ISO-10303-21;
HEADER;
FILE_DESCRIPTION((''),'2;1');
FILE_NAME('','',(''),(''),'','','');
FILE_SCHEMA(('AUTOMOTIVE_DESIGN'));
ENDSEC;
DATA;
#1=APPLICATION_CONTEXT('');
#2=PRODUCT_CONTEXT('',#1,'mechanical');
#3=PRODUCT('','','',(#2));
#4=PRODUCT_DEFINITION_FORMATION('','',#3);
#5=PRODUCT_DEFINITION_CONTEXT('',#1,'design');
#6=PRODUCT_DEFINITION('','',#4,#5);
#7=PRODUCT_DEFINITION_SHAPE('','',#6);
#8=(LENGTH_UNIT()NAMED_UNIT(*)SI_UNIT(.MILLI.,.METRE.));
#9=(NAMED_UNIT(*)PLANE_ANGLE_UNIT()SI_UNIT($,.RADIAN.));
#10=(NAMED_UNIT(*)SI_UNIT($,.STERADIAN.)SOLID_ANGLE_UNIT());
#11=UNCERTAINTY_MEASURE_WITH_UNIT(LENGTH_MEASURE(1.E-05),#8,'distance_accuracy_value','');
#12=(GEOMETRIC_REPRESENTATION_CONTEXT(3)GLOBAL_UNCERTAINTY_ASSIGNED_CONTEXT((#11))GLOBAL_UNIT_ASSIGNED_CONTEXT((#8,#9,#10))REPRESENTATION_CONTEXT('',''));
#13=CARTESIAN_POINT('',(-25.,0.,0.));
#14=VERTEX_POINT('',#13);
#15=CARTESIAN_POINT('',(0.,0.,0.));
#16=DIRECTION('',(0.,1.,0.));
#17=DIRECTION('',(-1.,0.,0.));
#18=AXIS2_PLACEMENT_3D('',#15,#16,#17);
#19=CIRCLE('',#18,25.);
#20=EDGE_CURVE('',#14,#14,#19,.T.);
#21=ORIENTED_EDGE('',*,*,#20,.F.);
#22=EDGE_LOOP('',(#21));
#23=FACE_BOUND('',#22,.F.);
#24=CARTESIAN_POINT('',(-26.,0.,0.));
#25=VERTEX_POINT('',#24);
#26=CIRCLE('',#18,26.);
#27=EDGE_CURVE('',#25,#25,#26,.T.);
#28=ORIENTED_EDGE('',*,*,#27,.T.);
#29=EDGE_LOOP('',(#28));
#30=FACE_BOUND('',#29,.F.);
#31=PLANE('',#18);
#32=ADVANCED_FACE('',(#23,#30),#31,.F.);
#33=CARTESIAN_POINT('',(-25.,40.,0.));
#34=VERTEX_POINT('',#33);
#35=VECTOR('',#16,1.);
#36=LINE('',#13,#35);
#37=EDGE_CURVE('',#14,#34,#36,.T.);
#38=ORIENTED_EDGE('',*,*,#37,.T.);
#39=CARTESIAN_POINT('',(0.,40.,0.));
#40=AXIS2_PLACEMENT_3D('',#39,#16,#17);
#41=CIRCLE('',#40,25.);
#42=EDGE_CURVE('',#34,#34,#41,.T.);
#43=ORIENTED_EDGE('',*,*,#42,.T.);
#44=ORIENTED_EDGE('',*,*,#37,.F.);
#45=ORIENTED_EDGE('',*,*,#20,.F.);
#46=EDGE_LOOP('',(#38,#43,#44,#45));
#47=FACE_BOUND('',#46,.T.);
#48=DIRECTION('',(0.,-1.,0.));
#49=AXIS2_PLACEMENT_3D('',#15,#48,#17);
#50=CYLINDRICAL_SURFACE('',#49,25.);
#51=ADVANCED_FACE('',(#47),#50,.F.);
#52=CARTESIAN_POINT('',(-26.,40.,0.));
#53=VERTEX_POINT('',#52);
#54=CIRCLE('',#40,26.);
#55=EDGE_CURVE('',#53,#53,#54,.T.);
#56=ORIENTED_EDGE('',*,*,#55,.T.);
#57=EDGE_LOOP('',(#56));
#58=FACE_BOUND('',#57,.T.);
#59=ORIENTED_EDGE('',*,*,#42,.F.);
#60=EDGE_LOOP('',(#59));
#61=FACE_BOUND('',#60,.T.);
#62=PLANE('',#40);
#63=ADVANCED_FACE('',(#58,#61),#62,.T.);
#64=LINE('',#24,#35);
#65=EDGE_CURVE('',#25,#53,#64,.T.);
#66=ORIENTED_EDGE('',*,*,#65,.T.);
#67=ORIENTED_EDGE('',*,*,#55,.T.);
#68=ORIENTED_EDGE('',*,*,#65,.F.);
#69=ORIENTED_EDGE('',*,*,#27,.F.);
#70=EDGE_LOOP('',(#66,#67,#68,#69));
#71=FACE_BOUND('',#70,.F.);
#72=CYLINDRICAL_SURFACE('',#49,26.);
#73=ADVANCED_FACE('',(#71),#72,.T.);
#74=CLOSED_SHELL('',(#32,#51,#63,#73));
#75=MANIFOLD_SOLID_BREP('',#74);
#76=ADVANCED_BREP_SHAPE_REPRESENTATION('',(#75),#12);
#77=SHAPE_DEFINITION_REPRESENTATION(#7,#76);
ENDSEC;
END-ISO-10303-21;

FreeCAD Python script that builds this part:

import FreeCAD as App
import Part
import Sketcher

V = App.Vector

doc = App.newDocument("Part")
body = doc.addObject("PartDesign::Body", "Body")

sketch1 = doc.addObject("Sketcher::SketchObject", "Sketch")
body.addObject(sketch1)
sketch1.AttachmentSupport = (doc.XZ_Plane, [""])
sketch1.MapMode = "FlatFace"
sketch1.addGeometry([
    Part.Circle(V(0, 0, 0), V(0, 0, 1), 26),
    Part.Circle(V(0, 0, 0), V(0, 0, 1), 25),
], False)
sketch1.addConstraint([
    Sketcher.Constraint("Coincident", 0, 3, -1, 1),
    Sketcher.Constraint("Coincident", 1, 3, -1, 1),
    Sketcher.Constraint("Diameter", 0, 52.0),
    Sketcher.Constraint("Diameter", 1, 50.0),
])
pad1 = doc.addObject("PartDesign::Pad", "Pad")
body.addObject(pad1)
pad1.Profile = sketch1
pad1.Length = 40
pad1.Reversed = True

doc.recompute()
